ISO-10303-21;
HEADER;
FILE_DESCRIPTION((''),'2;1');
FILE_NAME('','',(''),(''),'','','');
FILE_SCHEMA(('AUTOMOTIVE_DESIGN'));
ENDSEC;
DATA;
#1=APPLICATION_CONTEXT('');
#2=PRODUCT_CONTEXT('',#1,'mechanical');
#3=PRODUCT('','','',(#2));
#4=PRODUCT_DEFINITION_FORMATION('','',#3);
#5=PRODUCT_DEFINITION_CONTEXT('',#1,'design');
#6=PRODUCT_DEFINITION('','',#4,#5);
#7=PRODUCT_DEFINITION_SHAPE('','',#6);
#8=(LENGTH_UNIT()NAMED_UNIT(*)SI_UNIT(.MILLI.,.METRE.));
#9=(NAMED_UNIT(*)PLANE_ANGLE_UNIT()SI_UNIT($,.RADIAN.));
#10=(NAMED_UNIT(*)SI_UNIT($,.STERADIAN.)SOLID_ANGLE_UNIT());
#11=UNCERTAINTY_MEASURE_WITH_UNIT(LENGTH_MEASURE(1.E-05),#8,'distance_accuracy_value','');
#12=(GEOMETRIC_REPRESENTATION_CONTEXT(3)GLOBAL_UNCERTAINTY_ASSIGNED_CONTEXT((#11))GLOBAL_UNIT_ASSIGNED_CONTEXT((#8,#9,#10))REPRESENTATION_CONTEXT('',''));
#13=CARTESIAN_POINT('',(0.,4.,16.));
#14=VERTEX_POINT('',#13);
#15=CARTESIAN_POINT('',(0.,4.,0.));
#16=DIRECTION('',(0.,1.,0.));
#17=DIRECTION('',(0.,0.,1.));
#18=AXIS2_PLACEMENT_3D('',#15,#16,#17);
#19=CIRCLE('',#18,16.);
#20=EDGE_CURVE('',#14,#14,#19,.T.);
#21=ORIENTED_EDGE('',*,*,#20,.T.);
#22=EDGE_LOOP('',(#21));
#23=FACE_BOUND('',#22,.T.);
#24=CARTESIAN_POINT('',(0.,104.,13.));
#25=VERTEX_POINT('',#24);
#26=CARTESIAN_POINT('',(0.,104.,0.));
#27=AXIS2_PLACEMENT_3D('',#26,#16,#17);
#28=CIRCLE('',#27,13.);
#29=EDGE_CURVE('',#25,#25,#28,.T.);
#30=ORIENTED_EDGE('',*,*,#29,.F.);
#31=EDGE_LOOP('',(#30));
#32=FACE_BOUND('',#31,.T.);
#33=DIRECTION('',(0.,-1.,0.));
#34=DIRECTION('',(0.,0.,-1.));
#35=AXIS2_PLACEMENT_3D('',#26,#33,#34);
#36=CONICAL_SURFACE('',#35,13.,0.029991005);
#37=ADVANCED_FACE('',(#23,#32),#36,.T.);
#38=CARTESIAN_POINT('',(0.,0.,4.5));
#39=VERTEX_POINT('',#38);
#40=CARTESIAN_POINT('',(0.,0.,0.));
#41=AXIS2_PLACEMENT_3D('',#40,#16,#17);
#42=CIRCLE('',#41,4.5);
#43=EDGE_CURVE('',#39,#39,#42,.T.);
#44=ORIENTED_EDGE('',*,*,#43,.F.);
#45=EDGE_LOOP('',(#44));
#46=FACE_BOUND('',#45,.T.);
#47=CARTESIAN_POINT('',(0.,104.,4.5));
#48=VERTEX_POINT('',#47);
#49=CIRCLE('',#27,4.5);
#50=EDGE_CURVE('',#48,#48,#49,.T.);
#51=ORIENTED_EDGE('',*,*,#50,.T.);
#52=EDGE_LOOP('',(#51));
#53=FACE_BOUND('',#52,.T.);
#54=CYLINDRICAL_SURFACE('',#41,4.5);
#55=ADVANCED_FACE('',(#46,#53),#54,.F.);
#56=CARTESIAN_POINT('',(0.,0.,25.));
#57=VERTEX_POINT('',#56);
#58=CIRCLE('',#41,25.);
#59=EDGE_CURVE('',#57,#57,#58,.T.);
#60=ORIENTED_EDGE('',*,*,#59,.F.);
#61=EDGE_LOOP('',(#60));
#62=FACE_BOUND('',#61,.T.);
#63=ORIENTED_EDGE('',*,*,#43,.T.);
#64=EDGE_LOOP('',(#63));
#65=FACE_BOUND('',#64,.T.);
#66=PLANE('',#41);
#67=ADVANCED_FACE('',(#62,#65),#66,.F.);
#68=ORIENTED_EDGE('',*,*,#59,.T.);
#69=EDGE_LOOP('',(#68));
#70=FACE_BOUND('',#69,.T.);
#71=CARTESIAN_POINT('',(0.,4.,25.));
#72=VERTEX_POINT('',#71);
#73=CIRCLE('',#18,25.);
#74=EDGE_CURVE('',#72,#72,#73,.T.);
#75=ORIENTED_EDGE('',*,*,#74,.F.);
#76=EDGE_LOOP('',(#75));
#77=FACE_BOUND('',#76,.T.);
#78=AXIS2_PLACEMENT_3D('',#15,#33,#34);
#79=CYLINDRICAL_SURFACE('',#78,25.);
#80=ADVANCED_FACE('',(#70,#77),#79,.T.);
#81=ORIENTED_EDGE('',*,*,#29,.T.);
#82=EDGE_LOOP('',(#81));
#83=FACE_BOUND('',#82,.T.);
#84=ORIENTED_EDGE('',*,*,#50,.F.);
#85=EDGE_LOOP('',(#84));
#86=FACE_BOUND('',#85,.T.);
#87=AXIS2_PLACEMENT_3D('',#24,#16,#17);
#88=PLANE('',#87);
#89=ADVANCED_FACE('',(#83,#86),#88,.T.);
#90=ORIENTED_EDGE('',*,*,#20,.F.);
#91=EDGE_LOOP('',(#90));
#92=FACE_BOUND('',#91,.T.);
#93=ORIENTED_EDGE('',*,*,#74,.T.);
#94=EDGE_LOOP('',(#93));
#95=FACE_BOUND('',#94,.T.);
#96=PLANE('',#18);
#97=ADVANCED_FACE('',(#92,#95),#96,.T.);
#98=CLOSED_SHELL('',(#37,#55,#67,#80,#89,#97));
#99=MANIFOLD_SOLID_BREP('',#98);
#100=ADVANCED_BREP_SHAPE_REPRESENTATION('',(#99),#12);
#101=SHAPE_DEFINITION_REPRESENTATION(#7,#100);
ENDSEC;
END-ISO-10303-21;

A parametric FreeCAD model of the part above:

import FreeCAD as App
import Part
import Sketcher
from FreeCAD import Vector


def add_polygon(sketch, points):
    """Adds a closed chain of lines whose ends are joined by coincident constraints."""
    first, n = sketch.GeometryCount, len(points)
    for a, b in zip(points, points[1:] + points[:1]):
        sketch.addGeometry(Part.LineSegment(App.Vector(*a, 0), App.Vector(*b, 0)), False)
    for i in range(n):
        sketch.addConstraint(Sketcher.Constraint("Coincident", first + i, 2, first + (i + 1) % n, 1))

doc = App.newDocument("Part")
body = doc.addObject("PartDesign::Body", "Body")

sketch1 = doc.addObject("Sketcher::SketchObject", "Sketch")
body.addObject(sketch1)
sketch1.AttachmentSupport = (doc.XZ_Plane, [""])
sketch1.MapMode = "FlatFace"
sketch1.addGeometry(Part.Circle(Vector(0, 0, 0), Vector(0, 0, 1), 25), False)
sketch1.addConstraint([
    Sketcher.Constraint("Coincident", 0, 3, -1, 1),
    Sketcher.Constraint("Diameter", 0, 50.0),
])
pad1 = doc.addObject("PartDesign::Pad", "Pad")
body.addObject(pad1)
pad1.Profile = sketch1
pad1.Length = 4
pad1.Reversed = True

sketch2 = doc.addObject("Sketcher::SketchObject", "Sketch001")
body.addObject(sketch2)
sketch2.AttachmentSupport = (doc.YZ_Plane, [""])
sketch2.MapMode = "FlatFace"
add_polygon(sketch2, [(4, 16), (4, 0), (104, 0), (104, 13)])
sketch2.addConstraint([
    Sketcher.Constraint("Vertical", 0),
    Sketcher.Constraint("Horizontal", 1),
    Sketcher.Constraint("Vertical", 2),
    Sketcher.Constraint("PointOnObject", 0, 2, -1),
    Sketcher.Constraint("DistanceX", 1, 1, 1, 2, 100.0),
    Sketcher.Constraint("DistanceY", 0, 2, 0, 1, 16.0),
    Sketcher.Constraint("DistanceY", 2, 1, 2, 2, 13.0),
    Sketcher.Constraint("DistanceX", -1, 1, 0, 2, 4.0),
])
revolution = doc.addObject("PartDesign::Revolution", "Revolution")
body.addObject(revolution)
revolution.Profile = sketch2
revolution.ReferenceAxis = (sketch2, ["H_Axis"])
revolution.Angle = 360

sketch3 = doc.addObject("Sketcher::SketchObject", "Sketch002")
body.addObject(sketch3)
sketch3.AttachmentSupport = (doc.XZ_Plane, [""])
sketch3.MapMode = "FlatFace"
sketch3.AttachmentOffset = App.Placement(Vector(0, 0, -4), App.Rotation())
sketch3.addGeometry(Part.Circle(Vector(0, 0, 0), Vector(0, 0, 1), 4.5), False)
sketch3.addConstraint([
    Sketcher.Constraint("Coincident", 0, 3, -1, 1),
    Sketcher.Constraint("Diameter", 0, 9.0),
])
pocket1 = doc.addObject("PartDesign::Pocket", "Pocket")
body.addObject(pocket1)
pocket1.Profile = sketch3
pocket1.Type = "ThroughAll"
pocket1.Midplane = True

doc.recompute()
